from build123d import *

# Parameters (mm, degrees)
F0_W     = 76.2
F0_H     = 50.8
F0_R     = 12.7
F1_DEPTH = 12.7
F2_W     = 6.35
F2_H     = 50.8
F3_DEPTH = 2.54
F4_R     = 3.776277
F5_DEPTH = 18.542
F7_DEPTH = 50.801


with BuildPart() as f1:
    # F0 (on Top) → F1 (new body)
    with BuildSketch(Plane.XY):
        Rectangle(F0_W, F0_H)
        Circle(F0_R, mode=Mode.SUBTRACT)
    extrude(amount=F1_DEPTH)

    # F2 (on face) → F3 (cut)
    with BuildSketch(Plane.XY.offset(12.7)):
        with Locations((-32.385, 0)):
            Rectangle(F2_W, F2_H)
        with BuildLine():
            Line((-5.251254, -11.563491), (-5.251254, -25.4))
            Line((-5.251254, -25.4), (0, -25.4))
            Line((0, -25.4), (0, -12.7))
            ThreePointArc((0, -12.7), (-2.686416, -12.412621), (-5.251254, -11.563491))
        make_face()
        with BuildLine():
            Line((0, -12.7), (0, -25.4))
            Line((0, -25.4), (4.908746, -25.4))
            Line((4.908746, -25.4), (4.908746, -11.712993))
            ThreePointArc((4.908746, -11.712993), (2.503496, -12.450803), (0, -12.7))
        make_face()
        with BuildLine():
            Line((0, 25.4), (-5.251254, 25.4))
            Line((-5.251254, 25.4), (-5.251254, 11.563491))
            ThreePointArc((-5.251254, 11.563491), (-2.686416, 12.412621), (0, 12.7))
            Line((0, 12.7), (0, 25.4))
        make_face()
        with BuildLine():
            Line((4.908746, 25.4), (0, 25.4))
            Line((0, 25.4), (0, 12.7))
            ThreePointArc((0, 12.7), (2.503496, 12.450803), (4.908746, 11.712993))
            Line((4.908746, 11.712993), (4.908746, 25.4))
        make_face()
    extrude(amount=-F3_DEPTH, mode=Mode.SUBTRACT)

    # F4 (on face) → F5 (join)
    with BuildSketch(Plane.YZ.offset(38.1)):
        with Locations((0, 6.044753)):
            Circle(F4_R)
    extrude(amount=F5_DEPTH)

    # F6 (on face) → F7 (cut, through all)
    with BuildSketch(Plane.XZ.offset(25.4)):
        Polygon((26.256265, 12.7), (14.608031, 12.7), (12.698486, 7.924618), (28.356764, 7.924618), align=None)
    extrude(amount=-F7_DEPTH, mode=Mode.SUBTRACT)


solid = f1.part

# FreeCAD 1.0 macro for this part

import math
import FreeCAD as App
import Part
import Sketcher

V = App.Vector
Q = App.Units.Quantity

doc = App.newDocument("Part")
body = doc.addObject("PartDesign::Body", "Body")

sketch1 = body.newObject("Sketcher::SketchObject", "Sketch")
sketch1.AttachmentSupport = (doc.getObject("XY_Plane"), [""])
sketch1.MapMode = "FlatFace"
sketch1.addGeometry([
    Part.LineSegment(V(-38, 25, 0), V(-38, -25, 0)),
    Part.LineSegment(V(-38, -25, 0), V(38, -25, 0)),
    Part.LineSegment(V(38, -25, 0), V(38, 25, 0)),
    Part.LineSegment(V(38, 25, 0), V(-38, 25, 0)),
    Part.Circle(V(0, 0, 0), V(0, 0, 1), 13),
], False)
sketch1.addConstraint([
    Sketcher.Constraint("Coincident", 0, 2, 1, 1),
    Sketcher.Constraint("Coincident", 1, 2, 2, 1),
    Sketcher.Constraint("Coincident", 2, 2, 3, 1),
    Sketcher.Constraint("Coincident", 3, 2, 0, 1),
    Sketcher.Constraint("Vertical", 0),
    Sketcher.Constraint("Horizontal", 1),
    Sketcher.Constraint("Vertical", 2),
    Sketcher.Constraint("Horizontal", 3),
    Sketcher.Constraint("Coincident", 4, 3, -1, 1),
    Sketcher.Constraint("Symmetric", 0, 2, 2, 2, -1, 1),
    Sketcher.Constraint("Diameter", 4, Q("1 in")),
    Sketcher.Constraint("DistanceX", 1, 1, 1, 2, Q("3 in")),
    Sketcher.Constraint("DistanceY", 0, 2, 0, 1, Q("2 in")),
])
pad1 = body.newObject("PartDesign::Pad", "Pad")
pad1.Profile = sketch1
pad1.Length = Q("0.5 in")

sketch2 = body.newObject("Sketcher::SketchObject", "Sketch001")
sketch2.AttachmentSupport = (doc.getObject("XY_Plane"), [""])
sketch2.MapMode = "FlatFace"
sketch2.AttachmentOffset = App.Placement(V(0, 0, 0.5 * 25.4), App.Rotation())
sketch2.addGeometry([
    Part.LineSegment(V(-36, 25, 0), V(-36, -25, 0)),
    Part.LineSegment(V(-36, -25, 0), V(-29, -25, 0)),
    Part.LineSegment(V(-29, -25, 0), V(-29, 25, 0)),
    Part.LineSegment(V(-29, 25, 0), V(-36, 25, 0)),
    Part.LineSegment(V(-5, -12, 0), V(-5, -25, 0)),
    Part.LineSegment(V(-5, -25, 0), V(5, -25, 0)),
    Part.LineSegment(V(5, -25, 0), V(5, -12, 0)),
    Part.ArcOfCircle(Part.Circle(V(0, 0, 0), V(0, 0, 1), 13), math.radians(-90), math.radians(-67)),
    Part.ArcOfCircle(Part.Circle(V(0, 0, 0), V(0, 0, 1), 13), math.radians(-114), math.radians(-90)),
    Part.LineSegment(V(-5, 25, 0), V(-5, 12, 0)),
    Part.ArcOfCircle(Part.Circle(V(0, 0, 0), V(0, 0, 1), 13), math.radians(90), math.radians(114)),
    Part.ArcOfCircle(Part.Circle(V(0, 0, 0), V(0, 0, 1), 13), math.radians(67), math.radians(90)),
    Part.LineSegment(V(5, 12, 0), V(5, 25, 0)),
    Part.LineSegment(V(5, 25, 0), V(-5, 25, 0)),
], False)
sketch2.addConstraint([
    Sketcher.Constraint("Coincident", 0, 2, 1, 1),
    Sketcher.Constraint("Coincident", 1, 2, 2, 1),
    Sketcher.Constraint("Coincident", 2, 2, 3, 1),
    Sketcher.Constraint("Coincident", 3, 2, 0, 1),
    Sketcher.Constraint("Coincident", 4, 2, 5, 1),
    Sketcher.Constraint("Coincident", 5, 2, 6, 1),
    Sketcher.Constraint("Coincident", 6, 2, 7, 2),
    Sketcher.Constraint("Tangent", 7, 1, 8, 2),
    Sketcher.Constraint("Coincident", 8, 1, 4, 1),
    Sketcher.Constraint("Coincident", 9, 2, 10, 2),
    Sketcher.Constraint("Tangent", 10, 1, 11, 2),
    Sketcher.Constraint("Coincident", 11, 1, 12, 1),
    Sketcher.Constraint("Coincident", 12, 2, 13, 1),
    Sketcher.Constraint("Coincident", 13, 2, 9, 1),
    Sketcher.Constraint("Vertical", 0),
    Sketcher.Constraint("Horizontal", 1),
    Sketcher.Constraint("Vertical", 2),
    Sketcher.Constraint("Horizontal", 3),
    Sketcher.Constraint("Vertical", 4),
    Sketcher.Constraint("Horizontal", 5),
    Sketcher.Constraint("Vertical", 6),
    Sketcher.Constraint("Vertical", 9),
    Sketcher.Constraint("Vertical", 12),
    Sketcher.Constraint("Horizontal", 13),
    Sketcher.Constraint("Coincident", 8, 3, -1, 1),
    Sketcher.Constraint("Coincident", 10, 3, -1, 1),
    Sketcher.Constraint("Equal", 8, 10),
    Sketcher.Constraint("Equal", 7, 11),
    Sketcher.Constraint("Symmetric", 5, 2, 12, 2, -1),
    Sketcher.Constraint("PointOnObject", 7, 1, -2),
    Sketcher.Constraint("PointOnObject", 10, 1, -2),
    Sketcher.Constraint("Horizontal", 1, 2, 4, 2),
    Sketcher.Constraint("Horizontal", 3, 2, 12, 2),
    Sketcher.Constraint("Vertical", 8, 1, 9, 2),
    Sketcher.Constraint("DistanceY", 0, 2, 0, 1, Q("2 in")),
    Sketcher.Constraint("DistanceX", 5, 1, 5, 2, Q("0.4 in")),
    Sketcher.Constraint("DistanceX", 1, 1, 1, 2, Q("0.25 in")),
    Sketcher.Constraint("DistanceX", 0, 2, -1, 1, Q("1.4 in")),
    Sketcher.Constraint("DistanceY", 7, 1, -1, 1, Q("0.5 in")),
    Sketcher.Constraint("Radius", 7, 12.700017),
    Sketcher.Constraint("DistanceY", 4, 2, 4, 1, 13.836509),
])
pocket1 = body.newObject("PartDesign::Pocket", "Pocket")
pocket1.Profile = sketch2
pocket1.Length = Q("0.1 in")

sketch3 = body.newObject("Sketcher::SketchObject", "Sketch002")
sketch3.AttachmentSupport = (doc.getObject("YZ_Plane"), [""])
sketch3.MapMode = "FlatFace"
sketch3.AttachmentOffset = App.Placement(V(0, 0, 1.5 * 25.4), App.Rotation())
sketch3.addGeometry(Part.Circle(V(0, 6, 0), V(0, 0, 1), 3.8), False)
sketch3.addConstraint([
    Sketcher.Constraint("PointOnObject", 0, 3, -2),
    Sketcher.Constraint("Diameter", 0, 7.552554),
    Sketcher.Constraint("DistanceY", -1, 1, 0, 3, 6.044753),
])
pad2 = body.newObject("PartDesign::Pad", "Pad001")
pad2.Profile = sketch3
pad2.Length = Q("0.73 in")

sketch4 = body.newObject("Sketcher::SketchObject", "Sketch003")
sketch4.AttachmentSupport = (doc.getObject("XZ_Plane"), [""])
sketch4.MapMode = "FlatFace"
sketch4.AttachmentOffset = App.Placement(V(0, 0, 1 * 25.4), App.Rotation())
sketch4.addGeometry([
    Part.LineSegment(V(26, 13, 0), V(15, 13, 0)),
    Part.LineSegment(V(15, 13, 0), V(13, 8, 0)),
    Part.LineSegment(V(13, 8, 0), V(28, 8, 0)),
    Part.LineSegment(V(28, 8, 0), V(26, 13, 0)),
], False)
sketch4.addConstraint([
    Sketcher.Constraint("Coincident", 0, 2, 1, 1),
    Sketcher.Constraint("Coincident", 1, 2, 2, 1),
    Sketcher.Constraint("Coincident", 2, 2, 3, 1),
    Sketcher.Constraint("Coincident", 3, 2, 0, 1),
    Sketcher.Constraint("Horizontal", 0),
    Sketcher.Constraint("Horizontal", 2),
    Sketcher.Constraint("DistanceY", -1, 1, 0, 2, Q("0.5 in")),
    Sketcher.Constraint("DistanceX", 3, 2, 2, 2, 2.100499),
    Sketcher.Constraint("Distance", 1, 5.143018),
    Sketcher.Constraint("Distance", 3, 5.216931),
    Sketcher.Constraint("DistanceX", 0, 2, 0, 1, 11.648234),
    Sketcher.Constraint("DistanceX", -1, 1, 0, 2, 14.608031),
])
pocket2 = body.newObject("PartDesign::Pocket", "Pocket001")
pocket2.Profile = sketch4
pocket2.Type = "ThroughAll"

doc.recompute()
